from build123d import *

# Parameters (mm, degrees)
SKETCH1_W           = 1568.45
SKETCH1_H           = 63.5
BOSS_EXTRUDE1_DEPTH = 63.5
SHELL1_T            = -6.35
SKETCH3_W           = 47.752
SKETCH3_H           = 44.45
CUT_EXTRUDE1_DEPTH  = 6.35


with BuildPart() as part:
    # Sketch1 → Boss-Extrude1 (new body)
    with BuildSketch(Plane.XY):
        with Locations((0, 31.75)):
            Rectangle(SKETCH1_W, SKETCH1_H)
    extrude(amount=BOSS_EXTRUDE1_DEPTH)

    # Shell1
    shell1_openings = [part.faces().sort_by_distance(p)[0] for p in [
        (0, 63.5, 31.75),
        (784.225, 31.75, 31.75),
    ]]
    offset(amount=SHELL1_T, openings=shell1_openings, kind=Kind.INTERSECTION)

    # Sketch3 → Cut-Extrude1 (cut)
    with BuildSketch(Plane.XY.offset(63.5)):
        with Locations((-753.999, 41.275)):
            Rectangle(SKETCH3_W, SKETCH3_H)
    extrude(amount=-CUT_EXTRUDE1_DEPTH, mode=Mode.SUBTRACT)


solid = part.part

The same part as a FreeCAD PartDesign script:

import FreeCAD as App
import Part
import Sketcher
from FreeCAD import Vector
Q = App.Units.Quantity


def faces_at(feature, points):
    """Names of the faces that lie closest to the given points."""
    faces = feature.Shape.Faces
    near = lambda p: min(range(len(faces)), key=lambda i: faces[i].distToShape(Part.Vertex(*p))[0])
    return sorted({f"Face{near(p) + 1}" for p in points})


def add_polygon(sketch, points):
    """Adds a closed chain of lines whose ends are joined by coincident constraints."""
    first, n = sketch.GeometryCount, len(points)
    for a, b in zip(points, points[1:] + points[:1]):
        sketch.addGeometry(Part.LineSegment(App.Vector(*a, 0), App.Vector(*b, 0)), False)
    for i in range(n):
        sketch.addConstraint(Sketcher.Constraint("Coincident", first + i, 2, first + (i + 1) % n, 1))

doc = App.newDocument("Part")
body = doc.addObject("PartDesign::Body", "Body")

sketch1 = body.newObject("Sketcher::SketchObject", "Sketch")
sketch1.AttachmentSupport = (doc.getObject("XY_Plane"), [""])
sketch1.MapMode = "FlatFace"
add_polygon(sketch1, [(-784, 64), (-784, 0), (784, 0), (784, 64)])
sketch1.addConstraint([
    Sketcher.Constraint("Vertical", 0),
    Sketcher.Constraint("Horizontal", 1),
    Sketcher.Constraint("Vertical", 2),
    Sketcher.Constraint("Horizontal", 3),
    Sketcher.Constraint("Symmetric", 0, 2, 1, 2, -1, 1),
    Sketcher.Constraint("DistanceY", 0, 2, 0, 1, Q("2.5 in")),
    Sketcher.Constraint("DistanceX", 1, 1, 1, 2, Q("61.75 in")),
])
pad1 = body.newObject("PartDesign::Pad", "Pad")
pad1.Profile = sketch1
pad1.Length = Q("2.5 in")
doc.recompute()

thickness = body.newObject("PartDesign::Thickness", "Thickness")
thickness.Base = (pad1, faces_at(pad1, [(0, 63.5, 31.75), (784.225, 31.75, 31.75)]))
thickness.Value = Q("0.25 in")
thickness.Reversed = True
thickness.Join = "Intersection"

sketch2 = body.newObject("Sketcher::SketchObject", "Sketch001")
sketch2.AttachmentSupport = (doc.getObject("XY_Plane"), [""])
sketch2.MapMode = "FlatFace"
sketch2.AttachmentOffset = App.Placement(Vector(0, 0, 2.5 * 25.4), App.Rotation())
add_polygon(sketch2, [(-778, 64), (-778, 19), (-730, 19), (-730, 64)])
sketch2.addConstraint([
    Sketcher.Constraint("Vertical", 0),
    Sketcher.Constraint("Horizontal", 1),
    Sketcher.Constraint("Vertical", 2),
    Sketcher.Constraint("Horizontal", 3),
    Sketcher.Constraint("DistanceX", 1, 1, 1, 2, Q("1.88 in")),
    Sketcher.Constraint("DistanceY", 0, 2, 0, 1, Q("1.75 in")),
    Sketcher.Constraint("DistanceY", -1, 1, 2, 2, Q("2.5 in")),
    Sketcher.Constraint("DistanceX", 0, 2, -1, 1, Q("30.625 in")),
])
pocket1 = body.newObject("PartDesign::Pocket", "Pocket")
pocket1.Profile = sketch2
pocket1.Length = Q("0.25 in")

doc.recompute()
